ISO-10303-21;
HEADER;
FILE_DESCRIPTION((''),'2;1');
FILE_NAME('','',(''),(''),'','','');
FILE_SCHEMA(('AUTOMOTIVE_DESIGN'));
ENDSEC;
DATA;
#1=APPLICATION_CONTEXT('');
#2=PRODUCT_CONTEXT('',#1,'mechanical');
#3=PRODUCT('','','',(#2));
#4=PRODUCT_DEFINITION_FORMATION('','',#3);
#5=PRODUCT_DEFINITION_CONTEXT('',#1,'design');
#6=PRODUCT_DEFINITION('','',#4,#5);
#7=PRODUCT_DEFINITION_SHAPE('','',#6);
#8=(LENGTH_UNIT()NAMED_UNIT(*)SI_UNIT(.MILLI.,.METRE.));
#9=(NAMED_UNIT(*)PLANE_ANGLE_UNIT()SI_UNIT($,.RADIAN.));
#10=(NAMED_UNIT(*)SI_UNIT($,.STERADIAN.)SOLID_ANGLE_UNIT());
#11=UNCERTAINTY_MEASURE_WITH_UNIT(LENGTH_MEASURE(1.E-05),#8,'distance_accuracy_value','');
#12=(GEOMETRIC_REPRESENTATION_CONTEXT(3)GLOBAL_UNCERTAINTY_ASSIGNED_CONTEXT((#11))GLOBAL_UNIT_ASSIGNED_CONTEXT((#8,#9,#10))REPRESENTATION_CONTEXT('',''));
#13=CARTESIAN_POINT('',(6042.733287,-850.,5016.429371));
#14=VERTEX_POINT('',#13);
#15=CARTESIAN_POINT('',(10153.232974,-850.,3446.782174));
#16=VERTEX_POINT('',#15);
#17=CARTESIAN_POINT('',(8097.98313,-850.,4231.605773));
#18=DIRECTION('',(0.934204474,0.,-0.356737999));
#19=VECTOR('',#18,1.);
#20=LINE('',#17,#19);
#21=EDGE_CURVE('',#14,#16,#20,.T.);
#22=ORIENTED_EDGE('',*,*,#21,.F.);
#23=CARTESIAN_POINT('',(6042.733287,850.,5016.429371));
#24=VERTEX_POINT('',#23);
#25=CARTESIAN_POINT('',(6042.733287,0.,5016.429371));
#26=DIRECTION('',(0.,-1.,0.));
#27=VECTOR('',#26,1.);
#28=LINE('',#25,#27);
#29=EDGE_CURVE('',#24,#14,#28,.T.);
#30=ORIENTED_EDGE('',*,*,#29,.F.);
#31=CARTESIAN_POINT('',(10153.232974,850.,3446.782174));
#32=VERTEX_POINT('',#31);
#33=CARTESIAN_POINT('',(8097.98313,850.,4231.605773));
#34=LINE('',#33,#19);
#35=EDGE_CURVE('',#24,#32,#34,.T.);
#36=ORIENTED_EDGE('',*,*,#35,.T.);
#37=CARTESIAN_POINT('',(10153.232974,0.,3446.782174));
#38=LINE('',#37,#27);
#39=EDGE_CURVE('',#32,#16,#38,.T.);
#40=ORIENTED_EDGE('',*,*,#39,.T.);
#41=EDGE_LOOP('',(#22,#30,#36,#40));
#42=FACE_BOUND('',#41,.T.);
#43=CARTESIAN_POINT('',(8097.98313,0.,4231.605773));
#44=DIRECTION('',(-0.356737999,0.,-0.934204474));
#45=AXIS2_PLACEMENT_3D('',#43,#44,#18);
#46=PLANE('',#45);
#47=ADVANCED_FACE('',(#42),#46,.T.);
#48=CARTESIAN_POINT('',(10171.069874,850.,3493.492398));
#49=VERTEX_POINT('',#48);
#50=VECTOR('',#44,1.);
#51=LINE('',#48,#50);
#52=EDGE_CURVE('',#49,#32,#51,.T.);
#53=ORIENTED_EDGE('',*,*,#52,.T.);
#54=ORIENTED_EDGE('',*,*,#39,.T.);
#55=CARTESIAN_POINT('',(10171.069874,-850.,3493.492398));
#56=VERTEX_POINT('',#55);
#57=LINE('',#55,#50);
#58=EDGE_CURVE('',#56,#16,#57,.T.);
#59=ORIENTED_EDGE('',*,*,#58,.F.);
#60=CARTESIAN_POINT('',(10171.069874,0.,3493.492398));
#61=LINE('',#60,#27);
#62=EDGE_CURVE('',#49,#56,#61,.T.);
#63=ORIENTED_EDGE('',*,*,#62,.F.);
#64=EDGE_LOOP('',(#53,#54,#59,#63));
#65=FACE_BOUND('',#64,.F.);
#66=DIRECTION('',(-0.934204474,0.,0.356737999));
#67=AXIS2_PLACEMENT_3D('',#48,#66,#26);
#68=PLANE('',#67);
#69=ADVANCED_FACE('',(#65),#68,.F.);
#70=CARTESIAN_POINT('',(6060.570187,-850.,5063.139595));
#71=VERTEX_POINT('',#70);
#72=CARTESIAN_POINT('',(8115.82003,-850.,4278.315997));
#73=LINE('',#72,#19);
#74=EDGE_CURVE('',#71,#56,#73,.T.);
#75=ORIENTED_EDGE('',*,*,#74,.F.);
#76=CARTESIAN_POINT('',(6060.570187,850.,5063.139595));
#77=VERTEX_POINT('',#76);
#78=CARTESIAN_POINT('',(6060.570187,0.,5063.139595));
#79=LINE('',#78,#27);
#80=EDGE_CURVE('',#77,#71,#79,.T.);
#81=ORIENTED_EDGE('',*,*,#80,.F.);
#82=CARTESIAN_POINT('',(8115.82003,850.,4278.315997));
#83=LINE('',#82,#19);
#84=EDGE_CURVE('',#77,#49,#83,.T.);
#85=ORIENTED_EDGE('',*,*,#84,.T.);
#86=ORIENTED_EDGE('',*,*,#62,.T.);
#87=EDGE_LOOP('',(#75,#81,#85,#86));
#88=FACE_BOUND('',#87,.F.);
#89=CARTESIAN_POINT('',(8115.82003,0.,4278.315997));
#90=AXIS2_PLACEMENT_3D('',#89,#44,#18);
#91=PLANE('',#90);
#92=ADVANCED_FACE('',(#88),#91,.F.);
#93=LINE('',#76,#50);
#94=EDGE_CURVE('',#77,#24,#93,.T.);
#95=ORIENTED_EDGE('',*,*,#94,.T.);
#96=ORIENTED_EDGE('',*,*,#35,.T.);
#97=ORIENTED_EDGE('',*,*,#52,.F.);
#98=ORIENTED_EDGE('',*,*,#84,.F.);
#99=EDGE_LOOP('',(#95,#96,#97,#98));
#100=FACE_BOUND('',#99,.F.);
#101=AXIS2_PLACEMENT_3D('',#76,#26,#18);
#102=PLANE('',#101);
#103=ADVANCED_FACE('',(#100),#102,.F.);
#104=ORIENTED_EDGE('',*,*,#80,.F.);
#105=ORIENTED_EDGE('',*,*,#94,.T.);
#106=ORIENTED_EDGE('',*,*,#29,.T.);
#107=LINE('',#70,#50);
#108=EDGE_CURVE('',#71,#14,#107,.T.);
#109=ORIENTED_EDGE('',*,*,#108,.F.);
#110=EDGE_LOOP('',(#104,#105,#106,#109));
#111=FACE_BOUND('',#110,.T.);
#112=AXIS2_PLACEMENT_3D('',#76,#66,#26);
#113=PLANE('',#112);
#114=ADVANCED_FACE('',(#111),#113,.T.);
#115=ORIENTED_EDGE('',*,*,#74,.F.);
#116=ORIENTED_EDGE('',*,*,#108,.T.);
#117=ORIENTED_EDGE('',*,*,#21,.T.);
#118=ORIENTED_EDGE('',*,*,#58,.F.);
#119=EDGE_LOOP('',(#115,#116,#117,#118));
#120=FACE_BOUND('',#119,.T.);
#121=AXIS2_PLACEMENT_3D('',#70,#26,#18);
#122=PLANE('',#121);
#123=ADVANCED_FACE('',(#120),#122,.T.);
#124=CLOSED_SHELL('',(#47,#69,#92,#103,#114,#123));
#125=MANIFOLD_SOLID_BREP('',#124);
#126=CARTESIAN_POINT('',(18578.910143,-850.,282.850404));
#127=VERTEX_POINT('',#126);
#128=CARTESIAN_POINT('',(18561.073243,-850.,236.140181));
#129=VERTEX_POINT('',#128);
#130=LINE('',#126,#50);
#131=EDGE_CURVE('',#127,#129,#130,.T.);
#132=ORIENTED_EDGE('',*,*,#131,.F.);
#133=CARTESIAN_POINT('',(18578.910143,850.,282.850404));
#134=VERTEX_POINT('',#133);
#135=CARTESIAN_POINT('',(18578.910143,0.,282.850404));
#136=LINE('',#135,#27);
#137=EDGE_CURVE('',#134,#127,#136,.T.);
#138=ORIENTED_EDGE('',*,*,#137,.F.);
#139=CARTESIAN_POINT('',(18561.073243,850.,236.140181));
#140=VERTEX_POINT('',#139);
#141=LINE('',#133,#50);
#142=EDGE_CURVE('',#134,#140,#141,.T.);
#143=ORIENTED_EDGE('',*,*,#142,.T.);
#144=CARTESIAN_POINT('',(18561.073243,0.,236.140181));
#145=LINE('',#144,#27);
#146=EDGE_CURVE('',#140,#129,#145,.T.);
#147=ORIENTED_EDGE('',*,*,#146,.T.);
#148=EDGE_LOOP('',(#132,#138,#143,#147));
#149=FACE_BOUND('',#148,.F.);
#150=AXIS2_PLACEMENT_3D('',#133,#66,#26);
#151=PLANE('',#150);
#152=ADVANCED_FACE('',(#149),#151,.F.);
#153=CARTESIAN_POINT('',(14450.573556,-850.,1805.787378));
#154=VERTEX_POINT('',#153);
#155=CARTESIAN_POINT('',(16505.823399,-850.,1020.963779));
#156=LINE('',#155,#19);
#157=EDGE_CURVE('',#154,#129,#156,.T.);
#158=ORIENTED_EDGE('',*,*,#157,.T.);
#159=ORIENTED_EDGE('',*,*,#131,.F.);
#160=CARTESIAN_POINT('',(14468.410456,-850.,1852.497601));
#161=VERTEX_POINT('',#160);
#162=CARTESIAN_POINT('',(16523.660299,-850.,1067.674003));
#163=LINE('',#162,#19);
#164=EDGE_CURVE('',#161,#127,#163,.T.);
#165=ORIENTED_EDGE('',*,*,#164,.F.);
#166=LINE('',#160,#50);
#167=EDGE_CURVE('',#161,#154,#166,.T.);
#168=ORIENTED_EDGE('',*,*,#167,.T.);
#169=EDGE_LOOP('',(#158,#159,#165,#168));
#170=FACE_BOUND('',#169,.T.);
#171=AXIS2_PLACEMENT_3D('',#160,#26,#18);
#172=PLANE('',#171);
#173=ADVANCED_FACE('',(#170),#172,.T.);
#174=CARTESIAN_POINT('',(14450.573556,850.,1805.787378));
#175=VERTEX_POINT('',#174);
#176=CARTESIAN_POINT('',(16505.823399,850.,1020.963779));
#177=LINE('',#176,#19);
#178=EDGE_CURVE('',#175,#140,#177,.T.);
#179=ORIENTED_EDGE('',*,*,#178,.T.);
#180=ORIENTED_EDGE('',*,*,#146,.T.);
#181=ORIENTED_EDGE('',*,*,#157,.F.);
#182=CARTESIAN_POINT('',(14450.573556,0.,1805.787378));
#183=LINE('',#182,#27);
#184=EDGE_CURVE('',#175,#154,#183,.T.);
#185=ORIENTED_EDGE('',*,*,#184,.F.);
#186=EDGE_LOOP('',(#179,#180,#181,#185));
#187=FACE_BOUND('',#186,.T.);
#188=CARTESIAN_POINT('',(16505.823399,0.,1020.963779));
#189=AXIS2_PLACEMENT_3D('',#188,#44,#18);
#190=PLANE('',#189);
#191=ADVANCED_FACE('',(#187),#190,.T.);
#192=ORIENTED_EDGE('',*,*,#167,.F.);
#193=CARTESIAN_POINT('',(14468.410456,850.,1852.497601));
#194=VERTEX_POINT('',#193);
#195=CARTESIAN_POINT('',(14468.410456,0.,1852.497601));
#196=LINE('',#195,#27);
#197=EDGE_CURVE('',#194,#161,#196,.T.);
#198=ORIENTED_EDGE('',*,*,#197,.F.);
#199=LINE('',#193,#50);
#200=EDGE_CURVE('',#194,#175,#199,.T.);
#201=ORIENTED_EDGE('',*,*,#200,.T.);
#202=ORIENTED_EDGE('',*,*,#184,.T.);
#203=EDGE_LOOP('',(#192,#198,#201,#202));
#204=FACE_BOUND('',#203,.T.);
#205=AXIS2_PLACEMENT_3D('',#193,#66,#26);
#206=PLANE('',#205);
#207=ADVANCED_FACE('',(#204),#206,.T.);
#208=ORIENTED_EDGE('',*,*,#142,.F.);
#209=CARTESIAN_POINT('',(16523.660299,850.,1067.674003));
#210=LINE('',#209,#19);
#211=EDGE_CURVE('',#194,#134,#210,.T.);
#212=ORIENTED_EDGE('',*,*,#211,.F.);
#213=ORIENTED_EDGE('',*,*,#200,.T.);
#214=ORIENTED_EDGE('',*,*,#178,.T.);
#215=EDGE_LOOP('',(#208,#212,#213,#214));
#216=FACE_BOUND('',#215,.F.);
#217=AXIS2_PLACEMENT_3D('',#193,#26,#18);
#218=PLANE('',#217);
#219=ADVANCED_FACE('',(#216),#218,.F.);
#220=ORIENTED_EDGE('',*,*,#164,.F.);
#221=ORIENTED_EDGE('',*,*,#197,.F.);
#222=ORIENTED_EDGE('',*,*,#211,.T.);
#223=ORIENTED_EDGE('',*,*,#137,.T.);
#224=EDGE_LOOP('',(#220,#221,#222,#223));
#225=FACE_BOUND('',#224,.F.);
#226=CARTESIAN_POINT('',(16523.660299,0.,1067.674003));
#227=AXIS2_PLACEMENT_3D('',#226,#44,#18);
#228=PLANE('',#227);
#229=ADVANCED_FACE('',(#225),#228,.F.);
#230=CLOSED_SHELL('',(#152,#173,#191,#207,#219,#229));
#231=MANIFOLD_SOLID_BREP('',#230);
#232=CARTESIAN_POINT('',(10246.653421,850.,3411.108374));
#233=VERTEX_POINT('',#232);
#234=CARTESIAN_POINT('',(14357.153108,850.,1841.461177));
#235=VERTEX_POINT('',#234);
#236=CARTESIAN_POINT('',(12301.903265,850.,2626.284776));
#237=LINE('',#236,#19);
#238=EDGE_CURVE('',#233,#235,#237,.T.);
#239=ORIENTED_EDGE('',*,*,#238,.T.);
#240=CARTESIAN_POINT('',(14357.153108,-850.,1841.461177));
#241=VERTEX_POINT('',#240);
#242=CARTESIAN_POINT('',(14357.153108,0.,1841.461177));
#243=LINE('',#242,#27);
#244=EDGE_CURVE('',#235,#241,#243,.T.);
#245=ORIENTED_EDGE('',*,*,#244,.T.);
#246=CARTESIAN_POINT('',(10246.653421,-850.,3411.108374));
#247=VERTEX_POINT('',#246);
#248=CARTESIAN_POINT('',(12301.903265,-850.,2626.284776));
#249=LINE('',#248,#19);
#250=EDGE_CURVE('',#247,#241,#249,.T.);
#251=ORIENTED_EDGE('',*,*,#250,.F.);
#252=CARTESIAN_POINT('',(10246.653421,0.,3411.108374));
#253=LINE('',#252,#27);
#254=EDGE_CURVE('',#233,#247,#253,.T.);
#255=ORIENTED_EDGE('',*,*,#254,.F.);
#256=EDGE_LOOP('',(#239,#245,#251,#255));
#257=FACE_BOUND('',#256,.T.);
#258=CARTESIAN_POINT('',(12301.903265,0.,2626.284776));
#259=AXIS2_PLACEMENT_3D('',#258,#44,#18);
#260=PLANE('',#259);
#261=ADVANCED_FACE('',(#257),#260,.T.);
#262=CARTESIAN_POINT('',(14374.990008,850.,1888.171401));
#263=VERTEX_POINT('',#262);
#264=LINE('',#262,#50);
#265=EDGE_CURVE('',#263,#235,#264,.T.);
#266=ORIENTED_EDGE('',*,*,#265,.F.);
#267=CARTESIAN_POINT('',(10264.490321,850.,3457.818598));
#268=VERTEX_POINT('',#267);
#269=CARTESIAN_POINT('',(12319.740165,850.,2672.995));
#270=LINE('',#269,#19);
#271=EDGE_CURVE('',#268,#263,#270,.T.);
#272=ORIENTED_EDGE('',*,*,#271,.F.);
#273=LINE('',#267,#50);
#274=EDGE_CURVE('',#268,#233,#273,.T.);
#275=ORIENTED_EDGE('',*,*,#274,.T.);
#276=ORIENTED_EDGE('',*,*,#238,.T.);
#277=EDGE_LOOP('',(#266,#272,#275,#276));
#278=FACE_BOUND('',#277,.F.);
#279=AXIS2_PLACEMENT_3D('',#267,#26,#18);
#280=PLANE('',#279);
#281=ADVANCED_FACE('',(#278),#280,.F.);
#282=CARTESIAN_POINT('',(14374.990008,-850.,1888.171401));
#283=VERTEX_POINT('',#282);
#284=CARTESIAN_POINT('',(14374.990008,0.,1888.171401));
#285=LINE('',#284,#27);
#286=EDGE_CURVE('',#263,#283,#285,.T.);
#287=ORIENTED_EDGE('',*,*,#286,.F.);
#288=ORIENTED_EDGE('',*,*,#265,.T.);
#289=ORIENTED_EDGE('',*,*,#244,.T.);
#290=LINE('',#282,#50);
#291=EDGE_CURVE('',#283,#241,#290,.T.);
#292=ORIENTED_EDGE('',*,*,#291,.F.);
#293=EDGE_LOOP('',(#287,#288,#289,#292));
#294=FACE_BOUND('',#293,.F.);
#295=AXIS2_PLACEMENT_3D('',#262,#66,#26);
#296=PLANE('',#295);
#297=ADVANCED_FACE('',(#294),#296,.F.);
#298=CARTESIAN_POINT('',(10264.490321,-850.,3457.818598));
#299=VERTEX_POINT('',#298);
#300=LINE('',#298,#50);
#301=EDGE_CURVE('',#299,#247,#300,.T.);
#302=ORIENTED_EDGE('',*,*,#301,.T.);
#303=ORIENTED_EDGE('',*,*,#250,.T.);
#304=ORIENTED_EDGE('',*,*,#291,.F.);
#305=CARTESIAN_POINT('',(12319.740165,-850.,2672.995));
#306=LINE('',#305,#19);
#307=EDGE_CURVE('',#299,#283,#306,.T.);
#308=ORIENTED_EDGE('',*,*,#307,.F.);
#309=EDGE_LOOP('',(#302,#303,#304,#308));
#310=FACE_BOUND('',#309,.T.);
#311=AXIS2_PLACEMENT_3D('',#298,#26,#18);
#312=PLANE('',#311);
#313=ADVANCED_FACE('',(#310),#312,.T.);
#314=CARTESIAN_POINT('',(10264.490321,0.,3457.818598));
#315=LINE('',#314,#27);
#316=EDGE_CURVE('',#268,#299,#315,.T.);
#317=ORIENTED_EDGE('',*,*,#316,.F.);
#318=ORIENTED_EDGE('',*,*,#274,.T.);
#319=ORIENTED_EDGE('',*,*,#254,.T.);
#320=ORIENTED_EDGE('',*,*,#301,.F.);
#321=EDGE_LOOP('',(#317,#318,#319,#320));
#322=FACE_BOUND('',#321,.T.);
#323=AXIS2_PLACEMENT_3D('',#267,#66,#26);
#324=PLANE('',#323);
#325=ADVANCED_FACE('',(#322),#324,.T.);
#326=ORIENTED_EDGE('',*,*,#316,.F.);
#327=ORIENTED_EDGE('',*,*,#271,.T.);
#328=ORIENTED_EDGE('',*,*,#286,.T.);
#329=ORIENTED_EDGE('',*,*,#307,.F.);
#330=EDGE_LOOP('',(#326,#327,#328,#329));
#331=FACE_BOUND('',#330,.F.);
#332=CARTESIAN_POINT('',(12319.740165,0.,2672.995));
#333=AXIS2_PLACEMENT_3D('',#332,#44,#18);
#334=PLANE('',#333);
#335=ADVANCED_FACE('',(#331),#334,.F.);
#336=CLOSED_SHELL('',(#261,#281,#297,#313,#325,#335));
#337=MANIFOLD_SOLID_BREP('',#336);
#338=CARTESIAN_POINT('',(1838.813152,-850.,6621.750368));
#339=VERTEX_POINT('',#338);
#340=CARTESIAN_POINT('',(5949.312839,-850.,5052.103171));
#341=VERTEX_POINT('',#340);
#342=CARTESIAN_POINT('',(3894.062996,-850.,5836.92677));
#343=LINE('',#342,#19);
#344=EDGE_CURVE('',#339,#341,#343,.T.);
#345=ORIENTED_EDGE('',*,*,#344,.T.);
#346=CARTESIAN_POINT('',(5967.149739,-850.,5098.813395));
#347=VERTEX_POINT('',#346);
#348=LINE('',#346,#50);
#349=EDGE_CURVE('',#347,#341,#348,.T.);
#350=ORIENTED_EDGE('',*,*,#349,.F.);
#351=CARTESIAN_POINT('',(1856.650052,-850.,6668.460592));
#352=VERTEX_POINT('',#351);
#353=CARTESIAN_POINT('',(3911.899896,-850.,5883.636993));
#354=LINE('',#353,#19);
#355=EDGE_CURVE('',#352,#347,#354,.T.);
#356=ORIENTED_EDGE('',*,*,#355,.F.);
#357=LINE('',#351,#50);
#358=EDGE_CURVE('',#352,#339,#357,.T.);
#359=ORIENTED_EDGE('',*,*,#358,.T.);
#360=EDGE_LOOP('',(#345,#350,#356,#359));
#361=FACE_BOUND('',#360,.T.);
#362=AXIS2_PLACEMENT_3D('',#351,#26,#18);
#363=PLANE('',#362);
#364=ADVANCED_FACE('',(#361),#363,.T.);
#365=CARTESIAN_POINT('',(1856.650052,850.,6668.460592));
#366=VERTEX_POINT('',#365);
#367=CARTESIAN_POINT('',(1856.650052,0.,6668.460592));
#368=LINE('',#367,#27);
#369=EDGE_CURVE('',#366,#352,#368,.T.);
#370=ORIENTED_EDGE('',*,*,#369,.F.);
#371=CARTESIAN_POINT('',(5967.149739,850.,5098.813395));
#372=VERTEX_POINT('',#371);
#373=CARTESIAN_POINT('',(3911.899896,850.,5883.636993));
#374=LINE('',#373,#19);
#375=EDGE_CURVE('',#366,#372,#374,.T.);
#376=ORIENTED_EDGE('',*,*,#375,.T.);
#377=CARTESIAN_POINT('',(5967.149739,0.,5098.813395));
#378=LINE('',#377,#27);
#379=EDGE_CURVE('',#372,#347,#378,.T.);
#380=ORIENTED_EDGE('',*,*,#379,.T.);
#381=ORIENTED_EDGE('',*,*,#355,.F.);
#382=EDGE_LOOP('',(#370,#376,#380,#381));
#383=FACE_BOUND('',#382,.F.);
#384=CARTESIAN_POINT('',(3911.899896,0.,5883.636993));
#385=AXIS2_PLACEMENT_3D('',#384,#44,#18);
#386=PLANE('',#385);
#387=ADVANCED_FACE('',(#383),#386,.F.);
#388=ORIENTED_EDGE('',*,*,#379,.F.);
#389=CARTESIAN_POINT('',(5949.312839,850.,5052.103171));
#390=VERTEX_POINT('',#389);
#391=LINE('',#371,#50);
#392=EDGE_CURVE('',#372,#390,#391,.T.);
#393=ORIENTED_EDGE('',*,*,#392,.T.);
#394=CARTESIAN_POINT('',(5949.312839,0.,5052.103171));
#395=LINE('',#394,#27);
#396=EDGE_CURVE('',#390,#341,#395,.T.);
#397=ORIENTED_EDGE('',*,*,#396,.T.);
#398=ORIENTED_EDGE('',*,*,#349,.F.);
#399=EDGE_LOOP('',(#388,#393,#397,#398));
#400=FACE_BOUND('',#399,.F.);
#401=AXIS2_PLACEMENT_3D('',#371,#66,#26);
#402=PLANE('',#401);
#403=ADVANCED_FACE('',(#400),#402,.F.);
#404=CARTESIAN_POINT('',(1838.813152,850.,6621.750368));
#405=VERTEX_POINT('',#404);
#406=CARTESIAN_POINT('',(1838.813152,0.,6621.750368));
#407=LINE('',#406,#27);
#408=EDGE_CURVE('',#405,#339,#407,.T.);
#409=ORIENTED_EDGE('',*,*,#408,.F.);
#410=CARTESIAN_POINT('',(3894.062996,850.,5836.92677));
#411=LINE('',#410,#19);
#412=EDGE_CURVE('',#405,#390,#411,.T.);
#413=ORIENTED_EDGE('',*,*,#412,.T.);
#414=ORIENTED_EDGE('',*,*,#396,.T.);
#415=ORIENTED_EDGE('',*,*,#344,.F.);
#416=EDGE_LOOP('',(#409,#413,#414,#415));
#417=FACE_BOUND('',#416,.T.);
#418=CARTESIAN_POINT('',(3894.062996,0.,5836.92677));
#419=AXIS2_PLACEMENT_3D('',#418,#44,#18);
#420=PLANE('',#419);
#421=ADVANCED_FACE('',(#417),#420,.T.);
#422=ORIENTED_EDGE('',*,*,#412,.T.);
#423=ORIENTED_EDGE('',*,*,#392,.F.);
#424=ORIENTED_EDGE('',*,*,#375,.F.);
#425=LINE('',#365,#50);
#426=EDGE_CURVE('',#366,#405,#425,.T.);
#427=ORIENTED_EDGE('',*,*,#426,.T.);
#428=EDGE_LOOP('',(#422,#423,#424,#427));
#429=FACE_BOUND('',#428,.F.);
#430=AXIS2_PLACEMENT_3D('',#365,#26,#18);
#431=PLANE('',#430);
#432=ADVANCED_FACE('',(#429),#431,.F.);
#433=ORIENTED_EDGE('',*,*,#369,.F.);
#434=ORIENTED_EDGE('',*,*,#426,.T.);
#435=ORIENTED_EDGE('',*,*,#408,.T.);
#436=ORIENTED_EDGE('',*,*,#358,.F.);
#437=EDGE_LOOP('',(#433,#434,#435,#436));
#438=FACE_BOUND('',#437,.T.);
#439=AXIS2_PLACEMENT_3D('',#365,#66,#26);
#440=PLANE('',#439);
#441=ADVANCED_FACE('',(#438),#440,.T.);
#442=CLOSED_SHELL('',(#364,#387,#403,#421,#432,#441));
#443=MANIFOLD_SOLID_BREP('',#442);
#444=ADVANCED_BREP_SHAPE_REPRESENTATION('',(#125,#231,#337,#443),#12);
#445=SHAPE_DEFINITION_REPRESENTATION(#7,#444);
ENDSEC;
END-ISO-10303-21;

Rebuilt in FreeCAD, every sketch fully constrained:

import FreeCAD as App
import Part
import Sketcher

V = App.Vector
Q = App.Units.Quantity

doc = App.newDocument("Part")
body = doc.addObject("PartDesign::Body", "Body")

sketch1 = doc.addObject("Sketcher::SketchObject", "Sketch")
body.addObject(sketch1)
sketch1.Placement = App.Placement(V(2458.653755, 0, 6438.577732), App.Rotation(V(0.934204474, 0, -0.356737999), V(0, -0.999999999, 0), V(-0.356737999, 0, -0.934204474), "ZXY"))
sketch1.addGeometry([
    Part.LineSegment(V(-644, 850, 0), V(-644, -850, 0)),
    Part.LineSegment(V(-644, -850, 0), V(3756, -850, 0)),
    Part.LineSegment(V(3756, -850, 0), V(3756, 850, 0)),
    Part.LineSegment(V(3756, 850, 0), V(-644, 850, 0)),
], False)
sketch1.addConstraint([
    Sketcher.Constraint("Coincident", 0, 2, 1, 1),
    Sketcher.Constraint("Coincident", 1, 2, 2, 1),
    Sketcher.Constraint("Coincident", 2, 2, 3, 1),
    Sketcher.Constraint("Coincident", 3, 2, 0, 1),
    Sketcher.Constraint("Vertical", 0),
    Sketcher.Constraint("Horizontal", 1),
    Sketcher.Constraint("Vertical", 2),
    Sketcher.Constraint("Horizontal", 3),
    Sketcher.Constraint("DistanceY", 0, 2, -1, 1, Q("849.999999 mm")),
    Sketcher.Constraint("DistanceY", -1, 1, 2, 2, Q("849.999999 mm")),
    Sketcher.Constraint("DistanceX", 1, 1, 1, 2, Q("4399.999996 mm")),
    Sketcher.Constraint("DistanceX", 0, 2, -1, 1, Q("644.402503 mm")),
])
pad1 = doc.addObject("PartDesign::Pad", "Pad")
body.addObject(pad1)
pad1.Profile = sketch1
pad1.Length = 50
body2 = doc.addObject("PartDesign::Body", "Body001")

sketch2 = doc.addObject("Sketcher::SketchObject", "Sketch001")
body2.addObject(sketch2)
sketch2.Placement = App.Placement(V(2458.653755, 0, 6438.577732), App.Rotation(V(0.934204474, 0, -0.356737999), V(0, -0.999999999, 0), V(-0.356737999, 0, -0.934204474), "ZXY"))
sketch2.addGeometry([
    Part.LineSegment(V(3856, 850, 0), V(3856, -850, 0)),
    Part.LineSegment(V(3856, -850, 0), V(8256, -850, 0)),
    Part.LineSegment(V(8256, -850, 0), V(8256, 850, 0)),
    Part.LineSegment(V(8256, 850, 0), V(3856, 850, 0)),
], False)
sketch2.addConstraint([
    Sketcher.Constraint("Coincident", 0, 2, 1, 1),
    Sketcher.Constraint("Coincident", 1, 2, 2, 1),
    Sketcher.Constraint("Coincident", 2, 2, 3, 1),
    Sketcher.Constraint("Coincident", 3, 2, 0, 1),
    Sketcher.Constraint("Vertical", 0),
    Sketcher.Constraint("Horizontal", 1),
    Sketcher.Constraint("Vertical", 2),
    Sketcher.Constraint("Horizontal", 3),
    Sketcher.Constraint("DistanceY", 0, 2, -1, 1, Q("849.999999 mm")),
    Sketcher.Constraint("DistanceY", -1, 1, 2, 2, Q("849.999999 mm")),
    Sketcher.Constraint("DistanceX", 1, 1, 1, 2, Q("4399.999996 mm")),
    Sketcher.Constraint("DistanceX", -1, 1, 1, 2, Q("8255.597489 mm")),
])
pad2 = doc.addObject("PartDesign::Pad", "Pad001")
body2.addObject(pad2)
pad2.Profile = sketch2
pad2.Length = 50
body3 = doc.addObject("PartDesign::Body", "Body002")

sketch3 = doc.addObject("Sketcher::SketchObject", "Sketch002")
body3.addObject(sketch3)
sketch3.Placement = App.Placement(V(2458.653755, 0, 6438.577732), App.Rotation(V(0.934204474, 0, -0.356737999), V(0, -0.999999999, 0), V(-0.356737999, 0, -0.934204474), "ZXY"))
sketch3.addGeometry([
    Part.LineSegment(V(8356, 850, 0), V(8356, -850, 0)),
    Part.LineSegment(V(8356, -850, 0), V(12756, -850, 0)),
    Part.LineSegment(V(12756, -850, 0), V(12756, 850, 0)),
    Part.LineSegment(V(12756, 850, 0), V(8356, 850, 0)),
], False)
sketch3.addConstraint([
    Sketcher.Constraint("Coincident", 0, 2, 1, 1),
    Sketcher.Constraint("Coincident", 1, 2, 2, 1),
    Sketcher.Constraint("Coincident", 2, 2, 3, 1),
    Sketcher.Constraint("Coincident", 3, 2, 0, 1),
    Sketcher.Constraint("Vertical", 0),
    Sketcher.Constraint("Horizontal", 1),
    Sketcher.Constraint("Vertical", 2),
    Sketcher.Constraint("Horizontal", 3),
    Sketcher.Constraint("DistanceY", 0, 2, -1, 1, Q("849.999999 mm")),
    Sketcher.Constraint("DistanceY", -1, 1, 2, 2, Q("849.999999 mm")),
    Sketcher.Constraint("DistanceX", 1, 1, 1, 2, Q("4399.999996 mm")),
    Sketcher.Constraint("DistanceX", -1, 1, 0, 2, Q("8355.597489 mm")),
])
pad3 = doc.addObject("PartDesign::Pad", "Pad002")
body3.addObject(pad3)
pad3.Profile = sketch3
pad3.Length = 50
body4 = doc.addObject("PartDesign::Body", "Body003")

sketch4 = doc.addObject("Sketcher::SketchObject", "Sketch003")
body4.addObject(sketch4)
sketch4.Placement = App.Placement(V(2458.653755, 0, 6438.577732), App.Rotation(V(0.934204474, 0, -0.356737999), V(0, -0.999999999, 0), V(-0.356737999, 0, -0.934204474), "ZXY"))
sketch4.addGeometry([
    Part.LineSegment(V(12856, 850, 0), V(12856, -850, 0)),
    Part.LineSegment(V(12856, -850, 0), V(17256, -850, 0)),
    Part.LineSegment(V(17256, -850, 0), V(17256, 850, 0)),
    Part.LineSegment(V(17256, 850, 0), V(12856, 850, 0)),
], False)
sketch4.addConstraint([
    Sketcher.Constraint("Coincident", 0, 2, 1, 1),
    Sketcher.Constraint("Coincident", 1, 2, 2, 1),
    Sketcher.Constraint("Coincident", 2, 2, 3, 1),
    Sketcher.Constraint("Coincident", 3, 2, 0, 1),
    Sketcher.Constraint("Vertical", 0),
    Sketcher.Constraint("Horizontal", 1),
    Sketcher.Constraint("Vertical", 2),
    Sketcher.Constraint("Horizontal", 3),
    Sketcher.Constraint("DistanceY", 0, 2, -1, 1, Q("849.999999 mm")),
    Sketcher.Constraint("DistanceY", -1, 1, 2, 2, Q("849.999999 mm")),
    Sketcher.Constraint("DistanceX", 1, 1, 1, 2, Q("4399.999996 mm")),
    Sketcher.Constraint("DistanceX", -1, 1, 1, 2, Q("17255.597482 mm")),
])
pad4 = doc.addObject("PartDesign::Pad", "Pad003")
body4.addObject(pad4)
pad4.Profile = sketch4
pad4.Length = 50

doc.recompute()
